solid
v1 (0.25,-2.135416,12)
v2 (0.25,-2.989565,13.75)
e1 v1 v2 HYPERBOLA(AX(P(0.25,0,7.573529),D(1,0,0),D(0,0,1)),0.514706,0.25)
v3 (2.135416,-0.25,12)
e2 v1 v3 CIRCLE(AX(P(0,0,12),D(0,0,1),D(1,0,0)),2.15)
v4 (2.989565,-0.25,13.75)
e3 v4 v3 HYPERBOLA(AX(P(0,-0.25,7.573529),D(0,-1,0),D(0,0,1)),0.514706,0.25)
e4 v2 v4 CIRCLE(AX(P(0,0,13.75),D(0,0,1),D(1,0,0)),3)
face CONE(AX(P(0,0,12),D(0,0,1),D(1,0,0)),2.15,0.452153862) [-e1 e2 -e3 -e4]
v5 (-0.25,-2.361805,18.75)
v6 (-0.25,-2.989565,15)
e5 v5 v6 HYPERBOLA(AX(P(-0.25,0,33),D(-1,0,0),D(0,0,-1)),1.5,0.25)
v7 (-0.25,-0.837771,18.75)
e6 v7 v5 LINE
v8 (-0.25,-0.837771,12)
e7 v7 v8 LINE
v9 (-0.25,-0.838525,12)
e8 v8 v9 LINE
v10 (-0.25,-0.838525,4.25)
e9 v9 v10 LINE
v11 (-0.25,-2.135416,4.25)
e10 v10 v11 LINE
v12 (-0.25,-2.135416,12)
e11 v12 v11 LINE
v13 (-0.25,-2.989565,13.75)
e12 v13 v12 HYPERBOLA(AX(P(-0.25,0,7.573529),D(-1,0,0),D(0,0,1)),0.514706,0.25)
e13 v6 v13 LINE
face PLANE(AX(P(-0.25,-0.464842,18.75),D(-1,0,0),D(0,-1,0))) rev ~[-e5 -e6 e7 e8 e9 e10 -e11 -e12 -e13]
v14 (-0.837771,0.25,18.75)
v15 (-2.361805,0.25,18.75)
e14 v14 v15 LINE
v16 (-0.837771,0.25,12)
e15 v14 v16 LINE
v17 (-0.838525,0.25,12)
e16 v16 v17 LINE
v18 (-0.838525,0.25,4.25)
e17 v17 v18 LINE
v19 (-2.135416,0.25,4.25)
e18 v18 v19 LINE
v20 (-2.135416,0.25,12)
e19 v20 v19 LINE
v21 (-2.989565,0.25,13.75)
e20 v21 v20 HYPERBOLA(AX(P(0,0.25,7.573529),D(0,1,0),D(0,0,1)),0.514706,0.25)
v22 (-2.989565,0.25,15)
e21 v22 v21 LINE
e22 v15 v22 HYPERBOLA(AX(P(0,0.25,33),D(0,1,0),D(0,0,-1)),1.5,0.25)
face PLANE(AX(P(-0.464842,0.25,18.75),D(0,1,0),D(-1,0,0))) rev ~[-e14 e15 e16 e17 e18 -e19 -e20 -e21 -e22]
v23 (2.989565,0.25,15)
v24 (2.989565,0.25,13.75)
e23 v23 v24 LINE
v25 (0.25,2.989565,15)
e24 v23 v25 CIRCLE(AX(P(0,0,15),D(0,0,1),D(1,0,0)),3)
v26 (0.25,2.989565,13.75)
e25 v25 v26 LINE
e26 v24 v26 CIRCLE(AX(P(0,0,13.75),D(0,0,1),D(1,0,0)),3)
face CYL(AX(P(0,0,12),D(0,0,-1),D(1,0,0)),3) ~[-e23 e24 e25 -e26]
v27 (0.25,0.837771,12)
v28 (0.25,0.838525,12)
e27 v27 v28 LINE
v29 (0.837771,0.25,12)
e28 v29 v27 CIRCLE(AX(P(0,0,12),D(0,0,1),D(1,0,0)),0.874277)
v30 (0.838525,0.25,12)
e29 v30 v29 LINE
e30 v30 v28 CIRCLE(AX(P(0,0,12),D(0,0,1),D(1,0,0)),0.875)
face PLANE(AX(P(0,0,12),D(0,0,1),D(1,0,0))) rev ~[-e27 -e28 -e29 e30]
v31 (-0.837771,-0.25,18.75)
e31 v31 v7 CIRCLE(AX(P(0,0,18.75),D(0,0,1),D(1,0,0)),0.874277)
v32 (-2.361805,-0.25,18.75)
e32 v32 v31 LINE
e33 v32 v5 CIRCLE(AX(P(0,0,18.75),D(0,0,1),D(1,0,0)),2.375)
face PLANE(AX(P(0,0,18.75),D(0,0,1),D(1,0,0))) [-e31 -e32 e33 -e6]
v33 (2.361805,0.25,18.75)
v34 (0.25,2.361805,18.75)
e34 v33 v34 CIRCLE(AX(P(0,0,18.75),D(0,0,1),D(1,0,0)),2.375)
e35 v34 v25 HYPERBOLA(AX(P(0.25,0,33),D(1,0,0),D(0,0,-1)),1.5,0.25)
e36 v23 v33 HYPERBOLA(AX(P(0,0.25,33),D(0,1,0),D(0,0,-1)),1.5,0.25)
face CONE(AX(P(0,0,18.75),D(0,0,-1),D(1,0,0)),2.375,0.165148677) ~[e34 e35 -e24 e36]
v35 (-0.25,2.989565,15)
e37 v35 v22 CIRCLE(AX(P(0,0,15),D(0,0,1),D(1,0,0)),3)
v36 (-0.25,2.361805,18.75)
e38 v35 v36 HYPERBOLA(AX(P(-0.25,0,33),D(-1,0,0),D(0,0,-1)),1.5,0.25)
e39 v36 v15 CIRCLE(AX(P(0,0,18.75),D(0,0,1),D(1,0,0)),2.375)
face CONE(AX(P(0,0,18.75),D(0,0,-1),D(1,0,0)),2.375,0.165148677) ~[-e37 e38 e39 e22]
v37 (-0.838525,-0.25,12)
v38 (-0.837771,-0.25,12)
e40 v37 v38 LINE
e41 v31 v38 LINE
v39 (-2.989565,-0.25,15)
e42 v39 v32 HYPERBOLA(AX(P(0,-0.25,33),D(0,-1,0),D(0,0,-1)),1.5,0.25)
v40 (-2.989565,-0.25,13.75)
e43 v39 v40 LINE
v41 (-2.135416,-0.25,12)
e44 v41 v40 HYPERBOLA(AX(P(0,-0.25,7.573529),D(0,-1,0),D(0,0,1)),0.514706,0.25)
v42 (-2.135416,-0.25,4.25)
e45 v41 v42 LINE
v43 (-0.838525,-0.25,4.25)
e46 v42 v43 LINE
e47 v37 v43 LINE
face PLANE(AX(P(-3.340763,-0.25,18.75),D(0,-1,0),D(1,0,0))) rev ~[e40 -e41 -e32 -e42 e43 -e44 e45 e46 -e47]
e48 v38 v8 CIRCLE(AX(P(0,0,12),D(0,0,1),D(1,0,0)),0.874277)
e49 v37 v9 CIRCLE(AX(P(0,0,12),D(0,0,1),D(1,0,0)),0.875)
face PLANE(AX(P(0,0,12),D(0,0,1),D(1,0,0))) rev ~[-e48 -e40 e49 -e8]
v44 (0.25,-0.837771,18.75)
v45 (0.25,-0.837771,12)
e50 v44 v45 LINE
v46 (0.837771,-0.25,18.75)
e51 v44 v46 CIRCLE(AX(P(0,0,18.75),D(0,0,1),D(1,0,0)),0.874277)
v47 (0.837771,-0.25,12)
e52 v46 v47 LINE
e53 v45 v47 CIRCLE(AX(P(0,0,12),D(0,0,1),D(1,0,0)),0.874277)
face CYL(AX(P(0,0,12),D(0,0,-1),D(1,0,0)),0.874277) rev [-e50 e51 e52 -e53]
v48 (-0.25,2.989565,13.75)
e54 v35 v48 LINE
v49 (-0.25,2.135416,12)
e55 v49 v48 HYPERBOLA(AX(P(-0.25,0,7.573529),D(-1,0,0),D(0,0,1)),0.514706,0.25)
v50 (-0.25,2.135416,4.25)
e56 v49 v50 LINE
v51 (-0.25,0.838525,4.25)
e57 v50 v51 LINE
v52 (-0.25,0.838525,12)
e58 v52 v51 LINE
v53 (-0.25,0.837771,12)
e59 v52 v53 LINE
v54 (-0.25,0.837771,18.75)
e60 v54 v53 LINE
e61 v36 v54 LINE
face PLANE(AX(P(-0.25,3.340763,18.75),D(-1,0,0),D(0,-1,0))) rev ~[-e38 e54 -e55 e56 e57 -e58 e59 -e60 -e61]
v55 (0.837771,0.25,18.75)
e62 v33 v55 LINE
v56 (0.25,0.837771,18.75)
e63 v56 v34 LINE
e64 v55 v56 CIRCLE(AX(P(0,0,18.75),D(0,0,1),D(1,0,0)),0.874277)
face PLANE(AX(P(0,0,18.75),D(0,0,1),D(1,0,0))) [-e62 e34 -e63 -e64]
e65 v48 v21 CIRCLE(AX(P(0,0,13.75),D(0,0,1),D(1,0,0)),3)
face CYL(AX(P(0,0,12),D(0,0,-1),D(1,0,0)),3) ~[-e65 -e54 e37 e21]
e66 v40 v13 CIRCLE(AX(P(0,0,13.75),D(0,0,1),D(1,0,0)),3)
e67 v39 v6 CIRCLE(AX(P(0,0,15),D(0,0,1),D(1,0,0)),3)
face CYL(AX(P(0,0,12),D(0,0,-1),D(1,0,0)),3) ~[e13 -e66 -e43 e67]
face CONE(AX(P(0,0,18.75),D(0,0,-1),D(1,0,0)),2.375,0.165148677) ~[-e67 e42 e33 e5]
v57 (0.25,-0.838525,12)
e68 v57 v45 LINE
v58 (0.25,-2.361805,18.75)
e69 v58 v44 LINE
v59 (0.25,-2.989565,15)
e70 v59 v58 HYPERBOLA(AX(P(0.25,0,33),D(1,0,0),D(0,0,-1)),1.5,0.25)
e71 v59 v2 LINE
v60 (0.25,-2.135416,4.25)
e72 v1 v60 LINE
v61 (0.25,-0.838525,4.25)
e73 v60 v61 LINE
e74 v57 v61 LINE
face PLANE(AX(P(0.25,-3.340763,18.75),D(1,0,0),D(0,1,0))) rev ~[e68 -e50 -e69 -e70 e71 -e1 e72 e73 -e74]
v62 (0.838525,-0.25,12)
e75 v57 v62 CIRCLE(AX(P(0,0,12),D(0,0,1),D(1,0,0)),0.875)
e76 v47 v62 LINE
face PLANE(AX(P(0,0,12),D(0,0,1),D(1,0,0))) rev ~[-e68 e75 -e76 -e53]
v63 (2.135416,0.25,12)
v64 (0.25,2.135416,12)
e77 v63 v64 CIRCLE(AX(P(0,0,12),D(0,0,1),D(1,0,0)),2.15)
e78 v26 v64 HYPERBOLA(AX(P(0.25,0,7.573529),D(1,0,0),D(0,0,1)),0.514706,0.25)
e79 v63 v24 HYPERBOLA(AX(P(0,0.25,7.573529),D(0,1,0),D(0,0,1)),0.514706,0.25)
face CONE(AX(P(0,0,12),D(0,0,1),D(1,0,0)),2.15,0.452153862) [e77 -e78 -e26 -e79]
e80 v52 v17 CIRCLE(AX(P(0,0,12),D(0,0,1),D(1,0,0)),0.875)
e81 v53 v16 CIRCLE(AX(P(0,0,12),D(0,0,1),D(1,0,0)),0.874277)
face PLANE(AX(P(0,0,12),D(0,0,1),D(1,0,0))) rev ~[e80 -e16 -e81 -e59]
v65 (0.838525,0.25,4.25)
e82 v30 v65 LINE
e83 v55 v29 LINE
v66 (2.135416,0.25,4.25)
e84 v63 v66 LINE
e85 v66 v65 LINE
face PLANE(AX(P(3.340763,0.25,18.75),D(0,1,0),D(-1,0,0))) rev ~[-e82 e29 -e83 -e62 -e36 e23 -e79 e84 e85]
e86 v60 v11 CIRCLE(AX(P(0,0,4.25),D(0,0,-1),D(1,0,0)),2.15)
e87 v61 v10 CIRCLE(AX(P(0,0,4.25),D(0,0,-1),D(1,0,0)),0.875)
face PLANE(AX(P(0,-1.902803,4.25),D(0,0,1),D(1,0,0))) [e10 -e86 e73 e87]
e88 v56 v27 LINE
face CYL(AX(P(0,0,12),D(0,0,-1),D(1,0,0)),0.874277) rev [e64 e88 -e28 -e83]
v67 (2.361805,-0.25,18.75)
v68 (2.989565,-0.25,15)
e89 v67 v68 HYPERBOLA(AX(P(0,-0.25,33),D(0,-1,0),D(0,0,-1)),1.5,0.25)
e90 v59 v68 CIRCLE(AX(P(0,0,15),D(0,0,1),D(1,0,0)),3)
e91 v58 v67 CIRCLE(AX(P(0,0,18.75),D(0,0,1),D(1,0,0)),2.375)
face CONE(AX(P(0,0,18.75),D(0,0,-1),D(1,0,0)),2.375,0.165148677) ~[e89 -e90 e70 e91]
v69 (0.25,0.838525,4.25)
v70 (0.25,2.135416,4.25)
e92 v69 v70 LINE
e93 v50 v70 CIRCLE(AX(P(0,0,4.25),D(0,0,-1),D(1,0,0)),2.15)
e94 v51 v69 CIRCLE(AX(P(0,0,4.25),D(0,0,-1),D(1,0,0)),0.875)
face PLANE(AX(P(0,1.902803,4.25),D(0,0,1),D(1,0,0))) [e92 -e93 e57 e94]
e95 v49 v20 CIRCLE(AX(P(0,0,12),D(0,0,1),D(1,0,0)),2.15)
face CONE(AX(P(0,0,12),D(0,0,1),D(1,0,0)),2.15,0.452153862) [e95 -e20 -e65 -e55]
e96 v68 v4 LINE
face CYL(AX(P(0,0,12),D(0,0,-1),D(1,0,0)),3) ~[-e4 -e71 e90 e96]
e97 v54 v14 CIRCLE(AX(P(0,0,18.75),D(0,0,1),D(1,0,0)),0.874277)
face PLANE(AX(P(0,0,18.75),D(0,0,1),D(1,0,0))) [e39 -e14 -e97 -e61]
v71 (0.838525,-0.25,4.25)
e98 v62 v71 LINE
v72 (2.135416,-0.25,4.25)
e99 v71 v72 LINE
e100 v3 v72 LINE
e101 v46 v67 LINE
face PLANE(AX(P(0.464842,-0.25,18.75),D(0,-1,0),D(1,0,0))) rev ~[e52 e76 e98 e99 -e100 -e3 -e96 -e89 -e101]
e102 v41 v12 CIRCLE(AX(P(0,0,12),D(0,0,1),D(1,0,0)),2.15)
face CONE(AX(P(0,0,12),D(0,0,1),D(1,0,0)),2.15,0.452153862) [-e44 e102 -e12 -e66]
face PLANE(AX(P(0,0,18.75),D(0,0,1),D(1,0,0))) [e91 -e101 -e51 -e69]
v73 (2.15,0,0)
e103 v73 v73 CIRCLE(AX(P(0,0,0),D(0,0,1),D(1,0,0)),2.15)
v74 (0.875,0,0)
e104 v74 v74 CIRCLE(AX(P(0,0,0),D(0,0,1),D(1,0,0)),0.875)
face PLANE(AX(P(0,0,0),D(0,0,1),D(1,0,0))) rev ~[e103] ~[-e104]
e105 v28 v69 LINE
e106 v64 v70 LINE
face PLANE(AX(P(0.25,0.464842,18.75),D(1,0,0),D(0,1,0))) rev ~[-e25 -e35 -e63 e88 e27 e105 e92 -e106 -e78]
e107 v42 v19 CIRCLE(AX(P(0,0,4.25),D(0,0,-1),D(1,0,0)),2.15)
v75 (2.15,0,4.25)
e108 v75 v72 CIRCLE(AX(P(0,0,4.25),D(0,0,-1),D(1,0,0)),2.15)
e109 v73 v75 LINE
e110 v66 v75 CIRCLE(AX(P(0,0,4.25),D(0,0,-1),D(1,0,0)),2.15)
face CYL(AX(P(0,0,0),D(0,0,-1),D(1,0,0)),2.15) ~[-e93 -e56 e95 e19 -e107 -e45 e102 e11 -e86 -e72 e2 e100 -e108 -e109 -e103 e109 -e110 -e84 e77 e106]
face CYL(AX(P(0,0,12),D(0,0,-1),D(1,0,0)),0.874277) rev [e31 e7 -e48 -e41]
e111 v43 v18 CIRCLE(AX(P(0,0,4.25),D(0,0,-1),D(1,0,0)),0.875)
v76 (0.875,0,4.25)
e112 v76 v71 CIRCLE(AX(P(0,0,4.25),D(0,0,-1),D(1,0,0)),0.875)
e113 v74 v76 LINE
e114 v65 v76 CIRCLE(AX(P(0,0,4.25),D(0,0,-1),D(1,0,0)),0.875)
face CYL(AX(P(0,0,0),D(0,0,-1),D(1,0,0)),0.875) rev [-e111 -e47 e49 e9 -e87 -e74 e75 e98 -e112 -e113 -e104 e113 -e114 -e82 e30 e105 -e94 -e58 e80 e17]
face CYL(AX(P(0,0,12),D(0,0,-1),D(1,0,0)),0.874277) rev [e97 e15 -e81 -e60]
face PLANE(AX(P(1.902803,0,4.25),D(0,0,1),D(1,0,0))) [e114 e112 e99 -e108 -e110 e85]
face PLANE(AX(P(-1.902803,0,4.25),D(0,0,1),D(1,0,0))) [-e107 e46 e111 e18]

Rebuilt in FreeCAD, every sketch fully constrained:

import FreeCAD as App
import Part
import Sketcher

V = App.Vector


def add_polygon(sketch, points):
    """Adds a closed chain of lines whose ends are joined by coincident constraints."""
    first, n = sketch.GeometryCount, len(points)
    for a, b in zip(points, points[1:] + points[:1]):
        sketch.addGeometry(Part.LineSegment(App.Vector(*a, 0), App.Vector(*b, 0)), False)
    for i in range(n):
        sketch.addConstraint(Sketcher.Constraint("Coincident", first + i, 2, first + (i + 1) % n, 1))

doc = App.newDocument("Part")
params = doc.addObject("Spreadsheet::Sheet", "Params")
for row, (alias, value) in enumerate([
    ("sketch1_diameter", "4.3 mm"),
    ("sketch1_diameter2", "1.75 mm"),
    ("pad1_length", "12 mm"),
    ("sketch2_diameter", "6 mm"),
    ("pad2_length", "6.75 mm"),
    ("groove_angle", "360 deg"),
    ("sketch4_width", "0.5 mm"),
    ("pocket1_length", "14.5 mm"),
], start=1):
    params.set(f"A{row}", alias)
    params.set(f"B{row}", "=" + value)
    params.setAlias(f"B{row}", alias)

body = doc.addObject("PartDesign::Body", "Body")

sketch1 = body.newObject("Sketcher::SketchObject", "Sketch")
sketch1.AttachmentSupport = (doc.getObject("XY_Plane"), [""])
sketch1.MapMode = "FlatFace"
sketch1.addGeometry(Part.Circle(V(0, 0, 0), V(0, 0, 1), 2.15), False)
sketch1.addGeometry(Part.Circle(V(0, 0, 0), V(0, 0, 1), 0.875), False)
sketch1.addConstraint(Sketcher.Constraint("Coincident", 0, 3, -1, 1))
sketch1.addConstraint(Sketcher.Constraint("Coincident", 1, 3, -1, 1))
sketch1.addConstraint(Sketcher.Constraint("Diameter", 0, 4.3))
sketch1.addConstraint(Sketcher.Constraint("Diameter", 1, 1.75))
sketch1.setExpression("Constraints[2]", "Params.sketch1_diameter")
sketch1.setExpression("Constraints[3]", "Params.sketch1_diameter2")
pad1 = body.newObject("PartDesign::Pad", "Pad")
pad1.Profile = sketch1
pad1.setExpression("Length", "Params.pad1_length")

sketch2 = body.newObject("Sketcher::SketchObject", "Sketch001")
sketch2.AttachmentSupport = (doc.getObject("XY_Plane"), [""])
sketch2.MapMode = "FlatFace"
sketch2.AttachmentOffset = App.Placement(V(0, 0, 12), App.Rotation())
sketch2.addGeometry(Part.Circle(V(0, 0, 0), V(0, 0, 1), 3), False)
sketch2.addGeometry(Part.Circle(V(0, 0, 0), V(0, 0, 1), 0.874277), False)
sketch2.addConstraint(Sketcher.Constraint("Coincident", 0, 3, -1, 1))
sketch2.addConstraint(Sketcher.Constraint("Coincident", 1, 3, -1, 1))
sketch2.addConstraint(Sketcher.Constraint("Diameter", 0, 6.0))
sketch2.addConstraint(Sketcher.Constraint("Diameter", 1, 1.748554))
sketch2.setExpression("Constraints[2]", "Params.sketch2_diameter")
pad2 = body.newObject("PartDesign::Pad", "Pad001")
pad2.Profile = sketch2
pad2.setExpression("Length", "Params.pad2_length")

sketch3 = body.newObject("Sketcher::SketchObject", "Sketch002")
sketch3.AttachmentSupport = (doc.getObject("XZ_Plane"), [""])
sketch3.MapMode = "FlatFace"
add_polygon(sketch3, [(2.15, 12), (3, 13.75), (4.254863, 13.125401), (3.126581, 11.371697)])
add_polygon(sketch3, [(3, 15), (2.375, 18.75), (4.254863, 20.939605), (5.75176, 16.421813)])
sketch3.addConstraint(Sketcher.Constraint("Perpendicular", 2, 3))
sketch3.addConstraint(Sketcher.Constraint("Vertical", 1, 2, 5, 2))
sketch3.addConstraint(Sketcher.Constraint("Vertical", 0, 2, 7, 2))
sketch3.addConstraint(Sketcher.Constraint("DistanceX", -1, 1, 0, 2, 3.0))
sketch3.addConstraint(Sketcher.Constraint("DistanceY", -1, 1, 3, 2, 12.0))
sketch3.addConstraint(Sketcher.Constraint("DistanceY", -1, 1, 7, 2, 15.0))
sketch3.addConstraint(Sketcher.Constraint("DistanceY", 0, 2, 4, 2, 5.0))
sketch3.addConstraint(Sketcher.Constraint("DistanceY", -1, 1, 0, 2, 13.75))
sketch3.addConstraint(Sketcher.Constraint("DistanceX", -1, 1, 3, 2, 2.15))
sketch3.addConstraint(Sketcher.Constraint("DistanceX", -1, 1, 4, 2, 2.375))
sketch3.addConstraint(Sketcher.Constraint("DistanceY", -1, 1, 1, 2, 13.125401))
sketch3.addConstraint(Sketcher.Constraint("Distance", 3, 1.161238))
sketch3.addConstraint(Sketcher.Constraint("Distance", 5, 2.885872))
sketch3.addConstraint(Sketcher.Constraint("DistanceX", -1, 1, 2, 2, 3.126581))
sketch3.addConstraint(Sketcher.Constraint("DistanceX", -1, 1, 6, 2, 5.75176))
sketch3.addConstraint(Sketcher.Constraint("Distance", 6, 4.759322))
groove = body.newObject("PartDesign::Groove", "Groove")
groove.Profile = sketch3
groove.ReferenceAxis = (sketch3, ["V_Axis"])
groove.setExpression("Angle", "Params.groove_angle")

sketch4 = body.newObject("Sketcher::SketchObject", "Sketch003")
sketch4.AttachmentSupport = (doc.getObject("XY_Plane"), [""])
sketch4.MapMode = "FlatFace"
sketch4.AttachmentOffset = App.Placement(V(0, 0, 18.75), App.Rotation())
add_polygon(sketch4, [(-0.25, 3.340763), (-0.25, 0.464842), (0.25, 0.464842), (0.25, 3.340763)])
add_polygon(sketch4, [(3.340763, 0.25), (0.464842, 0.25), (0.464842, -0.25), (3.340763, -0.25)])
add_polygon(sketch4, [(0.25, -3.340763), (0.25, -0.464842), (-0.25, -0.464842), (-0.25, -3.340763)])
add_polygon(sketch4, [(-3.340763, -0.25), (-0.464842, -0.25), (-0.464842, 0.25), (-3.340763, 0.25)])
sketch4.addConstraint(Sketcher.Constraint("Vertical", 0))
sketch4.addConstraint(Sketcher.Constraint("Horizontal", 1))
sketch4.addConstraint(Sketcher.Constraint("Vertical", 2))
sketch4.addConstraint(Sketcher.Constraint("Horizontal", 3))
sketch4.addConstraint(Sketcher.Constraint("Horizontal", 4))
sketch4.addConstraint(Sketcher.Constraint("Vertical", 5))
sketch4.addConstraint(Sketcher.Constraint("Horizontal", 6))
sketch4.addConstraint(Sketcher.Constraint("Vertical", 7))
sketch4.addConstraint(Sketcher.Constraint("Vertical", 8))
sketch4.addConstraint(Sketcher.Constraint("Horizontal", 9))
sketch4.addConstraint(Sketcher.Constraint("Vertical", 10))
sketch4.addConstraint(Sketcher.Constraint("Horizontal", 11))
sketch4.addConstraint(Sketcher.Constraint("Horizontal", 12))
sketch4.addConstraint(Sketcher.Constraint("Vertical", 13))
sketch4.addConstraint(Sketcher.Constraint("Horizontal", 14))
sketch4.addConstraint(Sketcher.Constraint("Vertical", 15))
sketch4.addConstraint(Sketcher.Constraint("Symmetric", 0, 2, 8, 2, -1, 1))
sketch4.addConstraint(Sketcher.Constraint("Symmetric", 2, 2, 10, 2, -1, 1))
sketch4.addConstraint(Sketcher.Constraint("Symmetric", 4, 2, 12, 2, -1, 1))
sketch4.addConstraint(Sketcher.Constraint("Symmetric", 6, 2, 14, 2, -1, 1))
sketch4.addConstraint(Sketcher.Constraint("Horizontal", 6, 2, 12, 2))
sketch4.addConstraint(Sketcher.Constraint("Vertical", 2, 2, 8, 2))
sketch4.addConstraint(Sketcher.Constraint("Equal", 14, 0))
sketch4.addConstraint(Sketcher.Constraint("Equal", 11, 5))
sketch4.addConstraint(Sketcher.Constraint("DistanceX", 1, 1, 1, 2, 0.5))
sketch4.addConstraint(Sketcher.Constraint("DistanceX", 4, 2, 4, 1, 2.875921))
sketch4.addConstraint(Sketcher.Constraint("DistanceY", -1, 1, 0, 2, 0.464842))
sketch4.addConstraint(Sketcher.Constraint("DistanceX", -1, 1, 4, 2, 0.464842))
sketch4.setExpression("Constraints[40]", "Params.sketch4_width")
pocket1 = body.newObject("PartDesign::Pocket", "Pocket")
pocket1.Profile = sketch4
pocket1.setExpression("Length", "Params.pocket1_length")

doc.recompute()
